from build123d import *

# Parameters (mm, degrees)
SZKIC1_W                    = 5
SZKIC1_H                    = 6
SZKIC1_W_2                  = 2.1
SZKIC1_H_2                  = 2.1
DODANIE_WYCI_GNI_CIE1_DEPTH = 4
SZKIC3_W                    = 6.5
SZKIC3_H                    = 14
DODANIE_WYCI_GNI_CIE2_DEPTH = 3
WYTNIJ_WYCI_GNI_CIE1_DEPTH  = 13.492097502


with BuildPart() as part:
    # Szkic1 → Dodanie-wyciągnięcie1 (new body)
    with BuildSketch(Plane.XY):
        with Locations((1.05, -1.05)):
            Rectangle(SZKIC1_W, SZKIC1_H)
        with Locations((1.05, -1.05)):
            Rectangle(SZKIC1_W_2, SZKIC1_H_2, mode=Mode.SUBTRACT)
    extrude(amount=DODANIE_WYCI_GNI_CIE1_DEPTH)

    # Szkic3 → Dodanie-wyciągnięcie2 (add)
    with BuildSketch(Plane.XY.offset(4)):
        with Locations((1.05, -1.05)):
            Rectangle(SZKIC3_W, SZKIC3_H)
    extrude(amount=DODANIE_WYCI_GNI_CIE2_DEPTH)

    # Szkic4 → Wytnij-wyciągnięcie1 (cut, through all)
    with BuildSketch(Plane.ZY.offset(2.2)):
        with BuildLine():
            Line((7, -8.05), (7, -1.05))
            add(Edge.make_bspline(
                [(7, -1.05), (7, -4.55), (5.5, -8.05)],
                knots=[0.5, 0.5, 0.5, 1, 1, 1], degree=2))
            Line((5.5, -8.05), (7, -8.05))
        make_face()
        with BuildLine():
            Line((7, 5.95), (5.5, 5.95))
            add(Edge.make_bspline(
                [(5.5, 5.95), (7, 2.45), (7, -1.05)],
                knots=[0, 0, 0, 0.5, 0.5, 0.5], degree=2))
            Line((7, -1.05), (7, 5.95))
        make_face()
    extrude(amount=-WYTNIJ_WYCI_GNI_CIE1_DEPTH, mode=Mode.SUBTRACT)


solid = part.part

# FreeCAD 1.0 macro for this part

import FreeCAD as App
import Part
import Sketcher

V = App.Vector
Q = App.Units.Quantity


def add_polygon(sketch, points):
    """Adds a closed chain of lines whose ends are joined by coincident constraints."""
    first, n = sketch.GeometryCount, len(points)
    for a, b in zip(points, points[1:] + points[:1]):
        sketch.addGeometry(Part.LineSegment(App.Vector(*a, 0), App.Vector(*b, 0)), False)
    for i in range(n):
        sketch.addConstraint(Sketcher.Constraint("Coincident", first + i, 2, first + (i + 1) % n, 1))

doc = App.newDocument("Part")
body = doc.addObject("PartDesign::Body", "Body")

# Sketch on XY plane
sketch1 = body.newObject("Sketcher::SketchObject", "Sketch")
sketch1.AttachmentSupport = (doc.getObject("XY_Plane"), [""])
sketch1.MapMode = "FlatFace"
add_polygon(sketch1, [(-1.4, 1.9), (-1.4, -4), (3.5, -4), (3.5, 1.9)])  # lines 0-3
add_polygon(sketch1, [(2.1, -2.1), (0, -2.1), (0, 0), (2.1, 0)])  # lines 4-7
sketch1.addConstraint([
    Sketcher.Constraint("Vertical", 0),
    Sketcher.Constraint("Horizontal", 1),
    Sketcher.Constraint("Vertical", 2),
    Sketcher.Constraint("Horizontal", 3),
    Sketcher.Constraint("Horizontal", 4),
    Sketcher.Constraint("Vertical", 5),
    Sketcher.Constraint("Horizontal", 6),
    Sketcher.Constraint("Vertical", 7),
    Sketcher.Constraint("Coincident", 5, 2, -1, 1),
    Sketcher.Constraint("Equal", 6, 5),
    Sketcher.Constraint("DistanceX", 1, 1, 1, 2, Q("5 mm")),
    Sketcher.Constraint("DistanceY", 0, 2, 0, 1, Q("6 mm")),
    Sketcher.Constraint("DistanceX", 4, 2, 4, 1, Q("2.1 mm")),
    Sketcher.Constraint("DistanceX", 0, 2, -1, 1, Q("1.45 mm")),
    Sketcher.Constraint("DistanceY", 0, 2, -1, 1, Q("4.05 mm")),
])
pad1 = body.newObject("PartDesign::Pad", "Pad")
pad1.Profile = sketch1
pad1.Length = 4

# Sketch on XY plane
sketch2 = body.newObject("Sketcher::SketchObject", "Sketch001")
sketch2.AttachmentSupport = (doc.getObject("XY_Plane"), [""])
sketch2.MapMode = "FlatFace"
sketch2.AttachmentOffset = App.Placement(V(0, 0, 4), App.Rotation())
add_polygon(sketch2, [(-2, 6), (-2, -8), (4, -8), (4, 6)])  # lines 0-3
sketch2.addConstraint([
    Sketcher.Constraint("Vertical", 0),
    Sketcher.Constraint("Horizontal", 1),
    Sketcher.Constraint("Vertical", 2),
    Sketcher.Constraint("Horizontal", 3),
    Sketcher.Constraint("DistanceY", 0, 2, 0, 1, Q("14 mm")),
    Sketcher.Constraint("DistanceX", 1, 1, 1, 2, Q("6.5 mm")),
    Sketcher.Constraint("DistanceX", 0, 2, -1, 1, Q("2.2 mm")),
    Sketcher.Constraint("DistanceY", 0, 2, -1, 1, Q("8.05 mm")),
])
pad2 = body.newObject("PartDesign::Pad", "Pad001")
pad2.Profile = sketch2
pad2.Length = 3

# Sketch on YZ plane
sketch3 = body.newObject("Sketcher::SketchObject", "Sketch002")
sketch3.AttachmentSupport = (doc.getObject("YZ_Plane"), [""])
sketch3.MapMode = "FlatFace"
sketch3.AttachmentOffset = App.Placement(V(0, 0, -2.2), App.Rotation())
sketch3.addGeometry([
    Part.LineSegment(V(-8.05, 7, 0), V(-1.05, 7, 0)),  # 0
    Part.BSplineCurve([V(-1.05, 7, 0), V(-4.55, 7, 0), V(-8.05, 5.5, 0)], [3, 3], [0.5, 1], False, 2, [1, 1, 1], False),  # 1
    Part.LineSegment(V(-8.05, 5.5, 0), V(-8.05, 7, 0)),  # 2
    Part.LineSegment(V(5.95, 7, 0), V(5.95, 5.5, 0)),  # 3
    Part.BSplineCurve([V(5.95, 5.5, 0), V(2.45, 7, 0), V(-1.05, 7, 0)], [3, 3], [0, 0.5], False, 2, [1, 1, 1], False),  # 4
    Part.LineSegment(V(-1.05, 7, 0), V(5.95, 7, 0)),  # 5
], False)
sketch3.addConstraint([
    Sketcher.Constraint("Block", 1),
    Sketcher.Constraint("Block", 4),
    Sketcher.Constraint("Coincident", 0, 2, 1, 1),
    Sketcher.Constraint("Coincident", 1, 2, 2, 1),
    Sketcher.Constraint("Coincident", 2, 2, 0, 1),
    Sketcher.Constraint("Coincident", 3, 2, 4, 1),
    Sketcher.Constraint("Coincident", 4, 2, 5, 1),
    Sketcher.Constraint("Coincident", 5, 2, 3, 1),
    Sketcher.Constraint("Horizontal", 0),
    Sketcher.Constraint("Vertical", 2),
    Sketcher.Constraint("Vertical", 3),
    Sketcher.Constraint("Horizontal", 5),
])
pocket1 = body.newObject("PartDesign::Pocket", "Pocket")
pocket1.Profile = sketch3
pocket1.Type = "ThroughAll"
pocket1.Reversed = True

doc.recompute()
